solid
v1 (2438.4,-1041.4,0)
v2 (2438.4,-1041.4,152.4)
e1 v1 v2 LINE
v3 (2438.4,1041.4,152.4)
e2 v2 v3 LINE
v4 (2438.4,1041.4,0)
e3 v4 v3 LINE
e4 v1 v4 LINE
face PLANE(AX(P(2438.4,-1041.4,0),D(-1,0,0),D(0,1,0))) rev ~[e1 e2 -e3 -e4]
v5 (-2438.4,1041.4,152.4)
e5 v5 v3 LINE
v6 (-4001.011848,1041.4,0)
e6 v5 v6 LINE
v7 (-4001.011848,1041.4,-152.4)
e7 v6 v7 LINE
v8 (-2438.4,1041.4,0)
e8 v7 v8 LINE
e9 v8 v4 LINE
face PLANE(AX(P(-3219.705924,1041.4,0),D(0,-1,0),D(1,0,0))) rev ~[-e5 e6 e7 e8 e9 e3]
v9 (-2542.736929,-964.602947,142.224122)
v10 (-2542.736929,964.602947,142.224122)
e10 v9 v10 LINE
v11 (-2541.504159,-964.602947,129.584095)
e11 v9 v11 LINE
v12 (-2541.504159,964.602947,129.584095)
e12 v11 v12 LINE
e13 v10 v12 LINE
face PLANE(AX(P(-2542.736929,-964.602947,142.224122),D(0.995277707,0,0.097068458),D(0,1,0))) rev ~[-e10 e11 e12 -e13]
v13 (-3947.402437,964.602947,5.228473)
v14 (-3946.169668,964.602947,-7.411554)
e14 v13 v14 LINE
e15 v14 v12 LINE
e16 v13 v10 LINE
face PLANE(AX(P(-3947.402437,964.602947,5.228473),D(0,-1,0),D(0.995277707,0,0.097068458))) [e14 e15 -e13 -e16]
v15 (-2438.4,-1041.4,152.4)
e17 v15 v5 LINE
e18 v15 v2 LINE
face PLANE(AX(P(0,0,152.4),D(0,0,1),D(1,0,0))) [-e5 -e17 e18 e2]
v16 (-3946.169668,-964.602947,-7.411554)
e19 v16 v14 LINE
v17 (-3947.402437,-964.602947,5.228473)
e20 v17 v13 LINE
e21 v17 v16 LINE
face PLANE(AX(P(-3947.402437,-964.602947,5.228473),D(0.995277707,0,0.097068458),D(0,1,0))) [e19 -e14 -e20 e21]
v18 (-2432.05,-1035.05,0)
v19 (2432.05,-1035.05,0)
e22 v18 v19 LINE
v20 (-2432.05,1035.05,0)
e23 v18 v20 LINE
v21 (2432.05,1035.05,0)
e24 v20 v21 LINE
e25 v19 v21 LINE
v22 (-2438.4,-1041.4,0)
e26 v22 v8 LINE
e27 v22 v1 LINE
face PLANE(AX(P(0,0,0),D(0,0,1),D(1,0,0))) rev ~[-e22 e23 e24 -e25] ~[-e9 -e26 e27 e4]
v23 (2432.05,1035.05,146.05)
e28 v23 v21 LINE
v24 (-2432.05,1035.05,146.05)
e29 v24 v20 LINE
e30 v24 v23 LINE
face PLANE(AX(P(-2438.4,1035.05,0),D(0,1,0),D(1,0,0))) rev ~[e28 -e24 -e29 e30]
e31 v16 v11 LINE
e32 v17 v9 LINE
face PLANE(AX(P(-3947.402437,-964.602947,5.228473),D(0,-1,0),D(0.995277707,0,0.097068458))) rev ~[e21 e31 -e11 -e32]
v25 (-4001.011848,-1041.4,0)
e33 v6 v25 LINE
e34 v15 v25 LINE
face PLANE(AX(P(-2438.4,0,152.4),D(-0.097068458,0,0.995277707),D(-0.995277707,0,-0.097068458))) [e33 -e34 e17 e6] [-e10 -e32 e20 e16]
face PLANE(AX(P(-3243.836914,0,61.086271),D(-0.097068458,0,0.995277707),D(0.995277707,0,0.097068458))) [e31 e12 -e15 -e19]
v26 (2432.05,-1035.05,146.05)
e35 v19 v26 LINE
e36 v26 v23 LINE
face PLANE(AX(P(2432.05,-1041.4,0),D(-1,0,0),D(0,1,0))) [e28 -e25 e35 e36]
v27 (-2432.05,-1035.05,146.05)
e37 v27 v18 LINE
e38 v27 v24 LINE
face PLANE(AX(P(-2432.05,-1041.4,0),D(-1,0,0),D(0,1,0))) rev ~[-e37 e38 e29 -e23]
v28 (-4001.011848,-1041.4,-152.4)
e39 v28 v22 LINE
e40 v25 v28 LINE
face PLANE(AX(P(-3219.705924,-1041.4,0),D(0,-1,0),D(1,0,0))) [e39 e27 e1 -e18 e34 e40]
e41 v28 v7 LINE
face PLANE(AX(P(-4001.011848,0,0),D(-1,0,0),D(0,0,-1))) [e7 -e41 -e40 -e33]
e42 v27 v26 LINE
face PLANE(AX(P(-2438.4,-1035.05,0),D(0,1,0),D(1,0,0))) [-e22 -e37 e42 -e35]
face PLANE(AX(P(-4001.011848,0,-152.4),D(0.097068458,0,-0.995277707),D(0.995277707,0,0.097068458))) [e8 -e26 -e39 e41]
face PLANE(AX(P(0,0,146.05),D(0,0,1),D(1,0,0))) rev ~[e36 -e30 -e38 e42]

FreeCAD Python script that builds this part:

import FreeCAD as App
import Part
import Sketcher
Q = App.Units.Quantity


def faces_at(feature, points):
    """Names of the faces that lie closest to the given points."""
    faces = feature.Shape.Faces
    near = lambda p: min(range(len(faces)), key=lambda i: faces[i].distToShape(Part.Vertex(*p))[0])
    return sorted({f"Face{near(p) + 1}" for p in points})


def add_polygon(sketch, points):
    """Adds a closed chain of lines whose ends are joined by coincident constraints."""
    first, n = sketch.GeometryCount, len(points)
    for a, b in zip(points, points[1:] + points[:1]):
        sketch.addGeometry(Part.LineSegment(App.Vector(*a, 0), App.Vector(*b, 0)), False)
    for i in range(n):
        sketch.addConstraint(Sketcher.Constraint("Coincident", first + i, 2, first + (i + 1) % n, 1))

doc = App.newDocument("Part")
body = doc.addObject("PartDesign::Body", "Body")

# Sketch on XY plane
sketch1 = body.newObject("Sketcher::SketchObject", "Sketch")
sketch1.AttachmentSupport = (doc.getObject("XY_Plane"), [""])
sketch1.MapMode = "FlatFace"
add_polygon(sketch1, [(-2438, 1041), (-2438, -1041), (2438, -1041), (2438, 1041)])  # lines 0-3
sketch1.addConstraint(Sketcher.Constraint("Vertical", 0))
sketch1.addConstraint(Sketcher.Constraint("Horizontal", 1))
sketch1.addConstraint(Sketcher.Constraint("Vertical", 2))
sketch1.addConstraint(Sketcher.Constraint("Horizontal", 3))
sketch1.addConstraint(Sketcher.Constraint("Symmetric", 0, 2, 2, 2, -1, 1))
sketch1.addConstraint(Sketcher.Constraint("DistanceX", 1, 1, 1, 2, Q("192 in")))
sketch1.addConstraint(Sketcher.Constraint("DistanceY", 0, 2, 0, 1, Q("82 in")))
pad1 = body.newObject("PartDesign::Pad", "Pad")
pad1.Profile = sketch1
pad1.Length = Q("6 in")
doc.recompute()

thickness = body.newObject("PartDesign::Thickness", "Thickness")
thickness.Base = (pad1, faces_at(pad1, [(0, 0, 0)]))
thickness.Value = Q("0.25 in")
thickness.Reversed = True
thickness.Join = "Arc"

# Sketch on XZ plane
sketch2 = body.newObject("Sketcher::SketchObject", "Sketch001")
sketch2.AttachmentSupport = (doc.getObject("XZ_Plane"), [""])
sketch2.MapMode = "FlatFace"
add_polygon(sketch2, [(-2438, 0), (-2438, 152), (-4001, 0), (-4001, -152)])  # lines 0-3
sketch2.addConstraint(Sketcher.Constraint("Vertical", 0))
sketch2.addConstraint(Sketcher.Constraint("Vertical", 2))
sketch2.addConstraint(Sketcher.Constraint("PointOnObject", 1, 2, -1))
sketch2.addConstraint(Sketcher.Constraint("PointOnObject", 3, 2, -1))
sketch2.addConstraint(Sketcher.Constraint("Parallel", 1, 3))
sketch2.addConstraint(Sketcher.Constraint("DistanceY", 0, 1, 0, 2, Q("6 in")))
sketch2.addConstraint(Sketcher.Constraint("DistanceX", 0, 2, -1, 1, Q("96 in")))
sketch2.addConstraint(Sketcher.Constraint("Distance", 1, Q("1570.025971 mm")))
pad2 = body.newObject("PartDesign::Pad", "Pad001")
pad2.Profile = sketch2
pad2.Length = Q("82 in")
pad2.Midplane = True

# Sketch on an angled plane
sketch3 = body.newObject("Sketcher::SketchObject", "Sketch002")
sketch3.Placement = App.Placement(App.Vector(-37.698676, 0, 386.538044), App.Rotation(App.Vector(0.995277707, 0, 0.097068458), App.Vector(0, 1, 0), App.Vector(-0.097068458, 0, 0.995277707), "ZXY"))
add_polygon(sketch3, [(-3928, 965), (-3928, -965), (-2517, -965), (-2517, 965)])  # lines 0-3
sketch3.addConstraint(Sketcher.Constraint("Vertical", 0))
sketch3.addConstraint(Sketcher.Constraint("Horizontal", 1))
sketch3.addConstraint(Sketcher.Constraint("Vertical", 2))
sketch3.addConstraint(Sketcher.Constraint("Horizontal", 3))
sketch3.addConstraint(Sketcher.Constraint("DistanceX", 1, 1, 1, 2, Q("1411.330223 mm")))
sketch3.addConstraint(Sketcher.Constraint("DistanceY", 0, 2, 0, 1, Q("1929.205893 mm")))
sketch3.addConstraint(Sketcher.Constraint("DistanceX", 0, 2, -1, 1, Q("3928.254126 mm")))
sketch3.addConstraint(Sketcher.Constraint("DistanceY", 0, 2, -1, 1, Q("964.602946 mm")))
pocket1 = body.newObject("PartDesign::Pocket", "Pocket")
pocket1.Profile = sketch3
pocket1.Length = Q("0.5 in")

doc.recompute()
